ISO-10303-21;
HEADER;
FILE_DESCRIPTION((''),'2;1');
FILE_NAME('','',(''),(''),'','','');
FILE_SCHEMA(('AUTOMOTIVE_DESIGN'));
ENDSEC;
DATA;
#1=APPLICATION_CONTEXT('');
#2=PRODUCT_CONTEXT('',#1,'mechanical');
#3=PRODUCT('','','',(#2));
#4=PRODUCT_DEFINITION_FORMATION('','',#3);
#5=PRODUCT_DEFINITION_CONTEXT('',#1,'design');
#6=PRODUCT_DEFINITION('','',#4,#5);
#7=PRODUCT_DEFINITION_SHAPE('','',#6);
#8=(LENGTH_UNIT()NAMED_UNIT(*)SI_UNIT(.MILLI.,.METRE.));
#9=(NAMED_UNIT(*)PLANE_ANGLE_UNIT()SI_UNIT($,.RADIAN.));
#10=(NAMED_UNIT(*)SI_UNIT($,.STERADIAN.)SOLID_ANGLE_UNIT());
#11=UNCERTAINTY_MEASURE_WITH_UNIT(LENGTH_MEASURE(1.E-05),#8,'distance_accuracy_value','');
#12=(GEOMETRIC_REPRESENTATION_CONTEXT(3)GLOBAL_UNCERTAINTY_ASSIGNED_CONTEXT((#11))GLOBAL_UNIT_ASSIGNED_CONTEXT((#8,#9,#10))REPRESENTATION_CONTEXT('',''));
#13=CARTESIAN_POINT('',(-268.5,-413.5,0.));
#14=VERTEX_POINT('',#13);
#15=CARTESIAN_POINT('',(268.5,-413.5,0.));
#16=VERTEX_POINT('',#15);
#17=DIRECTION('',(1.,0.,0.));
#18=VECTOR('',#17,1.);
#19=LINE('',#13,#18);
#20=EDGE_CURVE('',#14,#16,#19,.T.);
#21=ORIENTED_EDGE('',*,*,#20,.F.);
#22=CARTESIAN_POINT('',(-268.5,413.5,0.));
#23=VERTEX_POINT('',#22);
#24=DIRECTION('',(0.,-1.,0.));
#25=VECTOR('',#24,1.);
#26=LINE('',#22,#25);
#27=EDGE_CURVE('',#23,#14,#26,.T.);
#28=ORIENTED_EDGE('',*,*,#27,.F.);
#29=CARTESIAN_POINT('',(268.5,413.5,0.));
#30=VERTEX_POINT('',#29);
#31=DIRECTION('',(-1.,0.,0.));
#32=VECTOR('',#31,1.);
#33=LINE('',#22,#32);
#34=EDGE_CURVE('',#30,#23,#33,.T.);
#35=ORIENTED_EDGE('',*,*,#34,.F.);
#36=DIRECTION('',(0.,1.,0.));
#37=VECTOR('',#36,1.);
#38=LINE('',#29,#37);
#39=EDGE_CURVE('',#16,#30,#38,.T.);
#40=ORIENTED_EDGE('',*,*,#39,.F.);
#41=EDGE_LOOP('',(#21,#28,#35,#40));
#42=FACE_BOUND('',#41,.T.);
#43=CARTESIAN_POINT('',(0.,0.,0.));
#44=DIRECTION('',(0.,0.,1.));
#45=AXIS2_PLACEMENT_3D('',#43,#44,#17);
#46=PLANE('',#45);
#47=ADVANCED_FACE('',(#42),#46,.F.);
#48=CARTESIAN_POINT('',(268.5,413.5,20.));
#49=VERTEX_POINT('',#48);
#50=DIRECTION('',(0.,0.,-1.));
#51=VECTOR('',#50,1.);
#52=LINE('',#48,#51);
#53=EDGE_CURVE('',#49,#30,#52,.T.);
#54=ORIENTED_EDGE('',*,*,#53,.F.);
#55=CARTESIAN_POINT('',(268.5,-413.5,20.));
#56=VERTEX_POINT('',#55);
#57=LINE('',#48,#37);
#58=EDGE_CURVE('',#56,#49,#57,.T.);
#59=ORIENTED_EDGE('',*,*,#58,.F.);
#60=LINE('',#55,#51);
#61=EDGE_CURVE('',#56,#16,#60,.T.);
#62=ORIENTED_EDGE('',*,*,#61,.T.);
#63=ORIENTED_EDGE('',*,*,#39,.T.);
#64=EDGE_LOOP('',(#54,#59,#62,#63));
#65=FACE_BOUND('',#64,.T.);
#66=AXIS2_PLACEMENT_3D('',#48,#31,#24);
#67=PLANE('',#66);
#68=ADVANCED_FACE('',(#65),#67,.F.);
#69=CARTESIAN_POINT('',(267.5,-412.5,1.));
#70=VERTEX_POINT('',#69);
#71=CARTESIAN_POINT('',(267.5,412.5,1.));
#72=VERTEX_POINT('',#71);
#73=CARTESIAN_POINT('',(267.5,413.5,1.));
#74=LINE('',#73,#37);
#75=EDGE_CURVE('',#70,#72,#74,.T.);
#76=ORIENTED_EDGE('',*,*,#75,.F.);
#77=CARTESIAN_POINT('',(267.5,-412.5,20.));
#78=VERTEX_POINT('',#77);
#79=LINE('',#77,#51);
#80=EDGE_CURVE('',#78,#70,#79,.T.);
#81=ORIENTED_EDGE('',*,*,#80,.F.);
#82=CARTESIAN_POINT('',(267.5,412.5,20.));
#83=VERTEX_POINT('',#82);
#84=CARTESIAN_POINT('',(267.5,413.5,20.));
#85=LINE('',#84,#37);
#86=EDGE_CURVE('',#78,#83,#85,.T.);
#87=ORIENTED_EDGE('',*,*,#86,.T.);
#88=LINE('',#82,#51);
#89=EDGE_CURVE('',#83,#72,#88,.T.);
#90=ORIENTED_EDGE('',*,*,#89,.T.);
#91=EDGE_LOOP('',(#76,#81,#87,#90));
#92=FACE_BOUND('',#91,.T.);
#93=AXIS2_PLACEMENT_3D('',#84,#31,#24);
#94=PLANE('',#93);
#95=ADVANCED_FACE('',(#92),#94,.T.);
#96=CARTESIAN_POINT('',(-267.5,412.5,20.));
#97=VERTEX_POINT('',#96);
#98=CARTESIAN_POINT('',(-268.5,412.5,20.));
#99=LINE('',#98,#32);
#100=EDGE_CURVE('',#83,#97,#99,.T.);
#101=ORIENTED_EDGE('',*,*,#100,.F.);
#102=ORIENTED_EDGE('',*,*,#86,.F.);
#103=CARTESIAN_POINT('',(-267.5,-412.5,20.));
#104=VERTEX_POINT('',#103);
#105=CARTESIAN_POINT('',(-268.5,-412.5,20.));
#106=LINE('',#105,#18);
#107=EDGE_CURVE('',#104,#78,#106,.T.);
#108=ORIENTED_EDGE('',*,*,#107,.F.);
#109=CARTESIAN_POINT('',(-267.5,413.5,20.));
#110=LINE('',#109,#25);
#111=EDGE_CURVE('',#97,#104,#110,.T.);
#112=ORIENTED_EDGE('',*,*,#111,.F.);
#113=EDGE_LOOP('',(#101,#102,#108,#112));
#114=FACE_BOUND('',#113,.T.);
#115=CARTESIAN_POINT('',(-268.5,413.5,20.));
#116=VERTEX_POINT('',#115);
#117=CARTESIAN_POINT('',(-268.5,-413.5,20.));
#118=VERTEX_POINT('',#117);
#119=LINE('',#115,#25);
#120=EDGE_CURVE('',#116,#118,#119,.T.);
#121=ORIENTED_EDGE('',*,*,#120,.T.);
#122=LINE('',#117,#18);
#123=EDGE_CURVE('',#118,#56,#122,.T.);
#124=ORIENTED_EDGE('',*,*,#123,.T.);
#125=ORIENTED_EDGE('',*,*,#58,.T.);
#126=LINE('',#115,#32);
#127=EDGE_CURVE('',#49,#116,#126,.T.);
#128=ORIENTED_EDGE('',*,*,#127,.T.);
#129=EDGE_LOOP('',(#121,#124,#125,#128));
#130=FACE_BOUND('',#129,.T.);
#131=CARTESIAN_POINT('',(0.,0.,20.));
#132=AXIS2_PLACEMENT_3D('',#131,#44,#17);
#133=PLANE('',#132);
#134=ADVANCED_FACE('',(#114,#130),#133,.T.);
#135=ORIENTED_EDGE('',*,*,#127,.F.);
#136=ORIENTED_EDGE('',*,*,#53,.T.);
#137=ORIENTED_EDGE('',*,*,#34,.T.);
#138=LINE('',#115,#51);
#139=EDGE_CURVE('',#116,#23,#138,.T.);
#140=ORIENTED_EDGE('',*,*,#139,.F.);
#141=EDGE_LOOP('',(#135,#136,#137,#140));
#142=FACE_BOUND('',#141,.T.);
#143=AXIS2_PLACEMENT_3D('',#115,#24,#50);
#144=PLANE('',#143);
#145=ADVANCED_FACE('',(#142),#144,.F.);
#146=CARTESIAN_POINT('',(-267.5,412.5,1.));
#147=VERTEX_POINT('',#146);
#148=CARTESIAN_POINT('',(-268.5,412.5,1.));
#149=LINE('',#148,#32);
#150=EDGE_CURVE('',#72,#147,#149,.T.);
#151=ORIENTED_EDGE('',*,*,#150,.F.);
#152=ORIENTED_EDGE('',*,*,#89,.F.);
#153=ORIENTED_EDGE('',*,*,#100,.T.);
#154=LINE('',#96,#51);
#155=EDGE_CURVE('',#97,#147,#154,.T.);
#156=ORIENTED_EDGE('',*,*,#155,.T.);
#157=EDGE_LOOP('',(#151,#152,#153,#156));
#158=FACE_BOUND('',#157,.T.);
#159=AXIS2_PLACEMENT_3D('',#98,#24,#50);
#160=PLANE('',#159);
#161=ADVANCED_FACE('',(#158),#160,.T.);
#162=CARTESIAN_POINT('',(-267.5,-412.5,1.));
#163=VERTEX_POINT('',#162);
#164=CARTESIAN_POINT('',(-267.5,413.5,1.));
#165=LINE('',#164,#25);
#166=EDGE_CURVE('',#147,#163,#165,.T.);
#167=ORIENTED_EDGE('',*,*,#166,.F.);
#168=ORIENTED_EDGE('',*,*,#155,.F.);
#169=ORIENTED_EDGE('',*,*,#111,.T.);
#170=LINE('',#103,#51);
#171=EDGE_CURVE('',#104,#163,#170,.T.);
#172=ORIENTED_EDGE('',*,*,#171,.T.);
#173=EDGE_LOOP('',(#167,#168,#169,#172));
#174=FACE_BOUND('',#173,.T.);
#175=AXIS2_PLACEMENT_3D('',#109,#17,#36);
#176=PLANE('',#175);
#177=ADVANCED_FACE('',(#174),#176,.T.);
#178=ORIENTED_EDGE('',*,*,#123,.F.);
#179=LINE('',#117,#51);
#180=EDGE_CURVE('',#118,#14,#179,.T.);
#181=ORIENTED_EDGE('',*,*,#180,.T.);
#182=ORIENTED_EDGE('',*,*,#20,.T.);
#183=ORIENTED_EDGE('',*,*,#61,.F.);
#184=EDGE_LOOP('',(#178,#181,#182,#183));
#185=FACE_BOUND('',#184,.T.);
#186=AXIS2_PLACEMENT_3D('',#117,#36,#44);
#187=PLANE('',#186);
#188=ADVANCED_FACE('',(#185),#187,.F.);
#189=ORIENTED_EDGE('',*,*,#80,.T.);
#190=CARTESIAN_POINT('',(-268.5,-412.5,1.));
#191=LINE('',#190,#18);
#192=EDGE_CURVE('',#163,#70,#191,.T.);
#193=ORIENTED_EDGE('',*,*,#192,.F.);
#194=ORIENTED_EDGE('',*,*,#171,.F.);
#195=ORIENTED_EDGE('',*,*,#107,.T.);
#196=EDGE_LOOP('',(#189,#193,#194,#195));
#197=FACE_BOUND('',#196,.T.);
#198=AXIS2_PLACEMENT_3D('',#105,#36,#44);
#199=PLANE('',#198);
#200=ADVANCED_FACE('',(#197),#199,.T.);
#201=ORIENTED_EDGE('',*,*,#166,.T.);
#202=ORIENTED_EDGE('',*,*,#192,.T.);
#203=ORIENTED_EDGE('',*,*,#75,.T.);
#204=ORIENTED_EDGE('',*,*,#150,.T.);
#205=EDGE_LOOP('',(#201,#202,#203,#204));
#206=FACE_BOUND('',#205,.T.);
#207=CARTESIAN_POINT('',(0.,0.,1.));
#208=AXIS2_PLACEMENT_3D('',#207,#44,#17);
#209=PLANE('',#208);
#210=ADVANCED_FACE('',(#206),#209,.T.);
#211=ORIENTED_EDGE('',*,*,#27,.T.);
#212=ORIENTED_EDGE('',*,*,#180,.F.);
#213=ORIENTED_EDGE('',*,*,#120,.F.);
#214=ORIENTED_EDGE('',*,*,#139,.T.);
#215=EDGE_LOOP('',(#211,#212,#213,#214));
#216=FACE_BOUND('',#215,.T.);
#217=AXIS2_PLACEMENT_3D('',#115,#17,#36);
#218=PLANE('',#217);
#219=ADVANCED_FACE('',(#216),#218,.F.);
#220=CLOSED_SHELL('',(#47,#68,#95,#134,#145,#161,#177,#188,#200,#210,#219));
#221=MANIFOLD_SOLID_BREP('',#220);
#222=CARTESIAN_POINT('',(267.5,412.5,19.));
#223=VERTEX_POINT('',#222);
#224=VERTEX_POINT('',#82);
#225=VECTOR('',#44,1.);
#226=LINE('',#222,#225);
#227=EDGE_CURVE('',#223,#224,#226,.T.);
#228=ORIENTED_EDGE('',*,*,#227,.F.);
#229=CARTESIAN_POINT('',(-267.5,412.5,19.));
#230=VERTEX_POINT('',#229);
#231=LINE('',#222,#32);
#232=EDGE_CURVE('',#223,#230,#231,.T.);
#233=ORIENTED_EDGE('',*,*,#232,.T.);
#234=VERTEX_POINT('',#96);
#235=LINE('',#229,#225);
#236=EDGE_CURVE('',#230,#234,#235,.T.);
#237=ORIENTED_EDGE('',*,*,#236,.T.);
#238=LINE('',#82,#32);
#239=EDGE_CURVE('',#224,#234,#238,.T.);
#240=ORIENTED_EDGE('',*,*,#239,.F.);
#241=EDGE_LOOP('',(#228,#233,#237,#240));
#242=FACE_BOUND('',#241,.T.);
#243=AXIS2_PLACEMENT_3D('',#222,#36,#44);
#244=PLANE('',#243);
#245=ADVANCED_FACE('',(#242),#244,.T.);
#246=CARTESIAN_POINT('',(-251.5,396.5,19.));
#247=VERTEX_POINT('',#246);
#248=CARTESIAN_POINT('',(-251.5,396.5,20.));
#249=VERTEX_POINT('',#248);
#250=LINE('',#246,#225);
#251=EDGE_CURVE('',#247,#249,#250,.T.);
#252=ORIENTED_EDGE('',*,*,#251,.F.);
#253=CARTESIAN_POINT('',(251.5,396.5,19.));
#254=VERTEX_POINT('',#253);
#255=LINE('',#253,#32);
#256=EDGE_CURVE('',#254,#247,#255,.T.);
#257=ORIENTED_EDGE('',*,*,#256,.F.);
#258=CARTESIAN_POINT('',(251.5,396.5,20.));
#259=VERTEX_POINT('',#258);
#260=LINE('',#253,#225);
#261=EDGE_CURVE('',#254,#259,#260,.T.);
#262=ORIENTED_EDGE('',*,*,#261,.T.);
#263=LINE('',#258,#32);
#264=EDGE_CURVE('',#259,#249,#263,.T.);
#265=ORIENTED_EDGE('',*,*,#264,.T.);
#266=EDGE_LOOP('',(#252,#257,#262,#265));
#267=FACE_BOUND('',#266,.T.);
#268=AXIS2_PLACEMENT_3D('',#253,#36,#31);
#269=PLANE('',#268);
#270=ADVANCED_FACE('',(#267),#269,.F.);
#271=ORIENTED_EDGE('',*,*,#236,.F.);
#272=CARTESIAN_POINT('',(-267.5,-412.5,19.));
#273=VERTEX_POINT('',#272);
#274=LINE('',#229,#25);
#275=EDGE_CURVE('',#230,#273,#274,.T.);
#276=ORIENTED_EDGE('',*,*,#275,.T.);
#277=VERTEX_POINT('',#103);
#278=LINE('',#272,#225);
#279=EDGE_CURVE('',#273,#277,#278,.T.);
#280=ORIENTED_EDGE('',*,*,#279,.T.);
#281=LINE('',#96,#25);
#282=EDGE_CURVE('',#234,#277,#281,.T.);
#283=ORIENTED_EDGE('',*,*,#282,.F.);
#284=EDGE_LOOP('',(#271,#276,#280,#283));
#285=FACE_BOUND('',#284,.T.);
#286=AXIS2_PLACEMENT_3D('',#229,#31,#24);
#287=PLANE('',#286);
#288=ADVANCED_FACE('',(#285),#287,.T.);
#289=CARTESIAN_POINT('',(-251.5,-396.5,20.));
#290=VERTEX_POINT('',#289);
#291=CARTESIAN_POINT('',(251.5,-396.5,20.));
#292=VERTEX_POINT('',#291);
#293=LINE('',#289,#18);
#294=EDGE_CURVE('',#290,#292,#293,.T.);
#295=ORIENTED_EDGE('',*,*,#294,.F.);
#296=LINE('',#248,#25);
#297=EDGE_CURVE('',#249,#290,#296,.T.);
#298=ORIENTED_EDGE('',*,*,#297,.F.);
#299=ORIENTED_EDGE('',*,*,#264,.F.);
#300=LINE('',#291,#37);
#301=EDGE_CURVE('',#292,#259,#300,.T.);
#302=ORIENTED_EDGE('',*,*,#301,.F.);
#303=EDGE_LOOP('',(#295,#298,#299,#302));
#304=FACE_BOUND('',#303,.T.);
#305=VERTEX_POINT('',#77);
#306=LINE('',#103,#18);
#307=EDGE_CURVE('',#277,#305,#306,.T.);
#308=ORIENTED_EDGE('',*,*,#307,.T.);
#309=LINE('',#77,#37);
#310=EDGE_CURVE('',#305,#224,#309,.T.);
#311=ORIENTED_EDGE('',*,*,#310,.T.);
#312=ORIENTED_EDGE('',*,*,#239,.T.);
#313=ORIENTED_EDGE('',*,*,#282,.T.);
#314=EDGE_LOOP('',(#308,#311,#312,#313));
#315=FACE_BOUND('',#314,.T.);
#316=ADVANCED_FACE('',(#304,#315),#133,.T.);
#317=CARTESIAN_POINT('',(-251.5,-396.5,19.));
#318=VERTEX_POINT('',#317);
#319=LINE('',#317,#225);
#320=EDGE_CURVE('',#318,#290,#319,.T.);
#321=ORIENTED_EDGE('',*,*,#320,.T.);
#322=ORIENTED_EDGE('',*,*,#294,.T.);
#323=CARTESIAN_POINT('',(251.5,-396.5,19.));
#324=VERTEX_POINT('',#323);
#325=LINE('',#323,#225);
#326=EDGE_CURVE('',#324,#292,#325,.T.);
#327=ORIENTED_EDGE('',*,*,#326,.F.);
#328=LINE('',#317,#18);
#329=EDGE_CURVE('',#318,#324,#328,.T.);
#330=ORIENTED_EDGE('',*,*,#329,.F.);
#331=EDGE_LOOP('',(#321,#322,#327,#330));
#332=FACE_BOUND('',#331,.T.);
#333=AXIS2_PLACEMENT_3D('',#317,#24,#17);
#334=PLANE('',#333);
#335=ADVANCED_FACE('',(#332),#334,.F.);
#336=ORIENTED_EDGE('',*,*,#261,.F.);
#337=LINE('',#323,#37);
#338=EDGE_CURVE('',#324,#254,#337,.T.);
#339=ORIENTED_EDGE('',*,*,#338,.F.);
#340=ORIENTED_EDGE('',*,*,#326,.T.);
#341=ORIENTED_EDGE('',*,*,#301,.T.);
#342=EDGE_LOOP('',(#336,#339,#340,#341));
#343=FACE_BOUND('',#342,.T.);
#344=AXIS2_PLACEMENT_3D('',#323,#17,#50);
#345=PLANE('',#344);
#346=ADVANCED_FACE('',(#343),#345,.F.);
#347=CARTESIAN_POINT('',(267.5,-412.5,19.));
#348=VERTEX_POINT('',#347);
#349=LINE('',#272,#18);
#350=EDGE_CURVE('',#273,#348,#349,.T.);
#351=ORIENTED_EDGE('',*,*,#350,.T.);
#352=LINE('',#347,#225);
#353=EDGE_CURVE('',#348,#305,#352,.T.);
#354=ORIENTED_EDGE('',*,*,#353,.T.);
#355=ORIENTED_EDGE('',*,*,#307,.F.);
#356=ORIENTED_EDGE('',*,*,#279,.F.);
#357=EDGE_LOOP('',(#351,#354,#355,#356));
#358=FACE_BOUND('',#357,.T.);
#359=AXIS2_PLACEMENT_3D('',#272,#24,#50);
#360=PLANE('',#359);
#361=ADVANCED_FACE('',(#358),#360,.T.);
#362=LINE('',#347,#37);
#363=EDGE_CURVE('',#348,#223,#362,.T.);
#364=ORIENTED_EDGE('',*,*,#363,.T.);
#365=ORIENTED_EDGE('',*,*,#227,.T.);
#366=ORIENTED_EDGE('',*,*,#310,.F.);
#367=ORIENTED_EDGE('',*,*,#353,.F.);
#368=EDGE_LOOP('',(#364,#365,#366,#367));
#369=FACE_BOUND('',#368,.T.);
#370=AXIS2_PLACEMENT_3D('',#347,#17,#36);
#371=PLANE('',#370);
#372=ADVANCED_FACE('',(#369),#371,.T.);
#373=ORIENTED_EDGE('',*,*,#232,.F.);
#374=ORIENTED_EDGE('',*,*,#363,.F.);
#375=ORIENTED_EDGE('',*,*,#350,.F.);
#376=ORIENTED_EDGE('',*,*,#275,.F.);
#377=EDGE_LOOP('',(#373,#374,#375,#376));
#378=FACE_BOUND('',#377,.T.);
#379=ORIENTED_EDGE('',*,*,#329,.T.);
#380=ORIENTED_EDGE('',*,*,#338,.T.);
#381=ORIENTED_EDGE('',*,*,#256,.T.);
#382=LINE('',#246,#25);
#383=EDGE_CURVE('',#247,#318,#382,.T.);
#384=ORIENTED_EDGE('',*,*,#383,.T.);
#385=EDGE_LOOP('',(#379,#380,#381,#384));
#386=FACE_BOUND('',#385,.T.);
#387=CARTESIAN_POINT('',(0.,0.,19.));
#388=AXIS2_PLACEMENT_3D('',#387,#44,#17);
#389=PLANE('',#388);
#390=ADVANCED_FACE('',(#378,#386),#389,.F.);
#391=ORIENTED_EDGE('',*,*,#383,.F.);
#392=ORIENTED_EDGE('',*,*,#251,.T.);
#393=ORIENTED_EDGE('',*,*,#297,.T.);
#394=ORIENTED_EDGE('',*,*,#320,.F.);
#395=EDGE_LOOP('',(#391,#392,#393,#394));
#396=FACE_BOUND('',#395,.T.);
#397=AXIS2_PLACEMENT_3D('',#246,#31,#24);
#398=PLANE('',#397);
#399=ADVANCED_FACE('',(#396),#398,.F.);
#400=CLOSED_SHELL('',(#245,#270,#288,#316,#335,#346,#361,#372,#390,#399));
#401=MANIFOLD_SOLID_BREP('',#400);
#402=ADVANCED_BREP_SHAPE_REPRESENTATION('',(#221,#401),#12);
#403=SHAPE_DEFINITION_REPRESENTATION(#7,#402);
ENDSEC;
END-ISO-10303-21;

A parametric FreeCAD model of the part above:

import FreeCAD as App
import Part
import Sketcher
from FreeCAD import Vector


def faces_at(feature, points):
    """Names of the faces that lie closest to the given points."""
    faces = feature.Shape.Faces
    near = lambda p: min(range(len(faces)), key=lambda i: faces[i].distToShape(Part.Vertex(*p))[0])
    return sorted({f"Face{near(p) + 1}" for p in points})

doc = App.newDocument("Part")
params = doc.addObject("Spreadsheet::Sheet", "Params")
for row, (alias, value) in enumerate([
    ("sketch1_width", "537 mm"),
    ("sketch1_height", "827 mm"),
    ("pad1_length", "20 mm"),
    ("thickness_wall", "1 mm"),
    ("sketch2_width", "535 mm"),
    ("sketch2_width2", "503 mm"),
    ("sketch2_height", "825 mm"),
    ("sketch2_height2", "793 mm"),
    ("pad2_length", "1 mm"),
], start=1):
    params.set(f"A{row}", alias)
    params.set(f"B{row}", "=" + value)
    params.setAlias(f"B{row}", alias)

body = doc.addObject("PartDesign::Body", "Body")

sketch1 = body.newObject("Sketcher::SketchObject", "Sketch")
sketch1.AttachmentSupport = (doc.getObject("XY_Plane"), [""])
sketch1.MapMode = "FlatFace"
sketch1.addGeometry([
    Part.LineSegment(Vector(-268, 414, 0), Vector(-268, -414, 0)),
    Part.LineSegment(Vector(-268, -414, 0), Vector(268, -414, 0)),
    Part.LineSegment(Vector(268, -414, 0), Vector(268, 414, 0)),
    Part.LineSegment(Vector(268, 414, 0), Vector(-268, 414, 0)),
], False)
sketch1.addConstraint([
    Sketcher.Constraint("Coincident", 0, 2, 1, 1),
    Sketcher.Constraint("Coincident", 1, 2, 2, 1),
    Sketcher.Constraint("Coincident", 2, 2, 3, 1),
    Sketcher.Constraint("Coincident", 3, 2, 0, 1),
    Sketcher.Constraint("Vertical", 0),
    Sketcher.Constraint("Horizontal", 1),
    Sketcher.Constraint("Vertical", 2),
    Sketcher.Constraint("Horizontal", 3),
    Sketcher.Constraint("Symmetric", 0, 2, 2, 2, -1, 1),
    Sketcher.Constraint("DistanceX", 1, 1, 1, 2, 537.0),
    Sketcher.Constraint("DistanceY", 0, 2, 0, 1, 827.0),
])
sketch1.setExpression("Constraints[9]", "Params.sketch1_width")
sketch1.setExpression("Constraints[10]", "Params.sketch1_height")
pad1 = body.newObject("PartDesign::Pad", "Pad")
pad1.Profile = sketch1
pad1.setExpression("Length", "Params.pad1_length")
doc.recompute()

thickness = body.newObject("PartDesign::Thickness", "Thickness")
thickness.Base = (pad1, faces_at(pad1, [(0, 0, 20)]))
thickness.setExpression("Value", "Params.thickness_wall")
thickness.Reversed = True
thickness.Join = "Intersection"
body2 = doc.addObject("PartDesign::Body", "Body001")

sketch2 = body2.newObject("Sketcher::SketchObject", "Sketch001")
sketch2.AttachmentSupport = (doc.getObject("XY_Plane001"), [""])
sketch2.MapMode = "FlatFace"
sketch2.AttachmentOffset = App.Placement(Vector(0, 0, 20), App.Rotation())
sketch2.addGeometry([
    Part.LineSegment(Vector(-268, 412, 0), Vector(-268, -412, 0)),
    Part.LineSegment(Vector(-268, -412, 0), Vector(268, -412, 0)),
    Part.LineSegment(Vector(268, -412, 0), Vector(268, 412, 0)),
    Part.LineSegment(Vector(268, 412, 0), Vector(-268, 412, 0)),
    Part.LineSegment(Vector(252, -396, 0), Vector(-252, -396, 0)),
    Part.LineSegment(Vector(-252, -396, 0), Vector(-252, 396, 0)),
    Part.LineSegment(Vector(-252, 396, 0), Vector(252, 396, 0)),
    Part.LineSegment(Vector(252, 396, 0), Vector(252, -396, 0)),
], False)
sketch2.addConstraint([
    Sketcher.Constraint("Coincident", 0, 2, 1, 1),
    Sketcher.Constraint("Coincident", 1, 2, 2, 1),
    Sketcher.Constraint("Coincident", 2, 2, 3, 1),
    Sketcher.Constraint("Coincident", 3, 2, 0, 1),
    Sketcher.Constraint("Coincident", 4, 2, 5, 1),
    Sketcher.Constraint("Coincident", 5, 2, 6, 1),
    Sketcher.Constraint("Coincident", 6, 2, 7, 1),
    Sketcher.Constraint("Coincident", 7, 2, 4, 1),
    Sketcher.Constraint("Vertical", 0),
    Sketcher.Constraint("Horizontal", 1),
    Sketcher.Constraint("Vertical", 2),
    Sketcher.Constraint("Horizontal", 3),
    Sketcher.Constraint("Horizontal", 4),
    Sketcher.Constraint("Vertical", 5),
    Sketcher.Constraint("Horizontal", 6),
    Sketcher.Constraint("Vertical", 7),
    Sketcher.Constraint("Symmetric", 0, 2, 2, 2, -1, 1),
    Sketcher.Constraint("Symmetric", 4, 2, 6, 2, -1, 1),
    Sketcher.Constraint("DistanceX", 1, 1, 1, 2, 535.0),
    Sketcher.Constraint("DistanceX", 4, 2, 4, 1, 503.0),
    Sketcher.Constraint("DistanceY", 0, 2, 0, 1, 825.0),
    Sketcher.Constraint("DistanceY", 5, 1, 5, 2, 793.0),
])
sketch2.setExpression("Constraints[18]", "Params.sketch2_width")
sketch2.setExpression("Constraints[19]", "Params.sketch2_width2")
sketch2.setExpression("Constraints[20]", "Params.sketch2_height")
sketch2.setExpression("Constraints[21]", "Params.sketch2_height2")
pad2 = body2.newObject("PartDesign::Pad", "Pad001")
pad2.Profile = sketch2
pad2.setExpression("Length", "Params.pad2_length")
pad2.Reversed = True

doc.recompute()
